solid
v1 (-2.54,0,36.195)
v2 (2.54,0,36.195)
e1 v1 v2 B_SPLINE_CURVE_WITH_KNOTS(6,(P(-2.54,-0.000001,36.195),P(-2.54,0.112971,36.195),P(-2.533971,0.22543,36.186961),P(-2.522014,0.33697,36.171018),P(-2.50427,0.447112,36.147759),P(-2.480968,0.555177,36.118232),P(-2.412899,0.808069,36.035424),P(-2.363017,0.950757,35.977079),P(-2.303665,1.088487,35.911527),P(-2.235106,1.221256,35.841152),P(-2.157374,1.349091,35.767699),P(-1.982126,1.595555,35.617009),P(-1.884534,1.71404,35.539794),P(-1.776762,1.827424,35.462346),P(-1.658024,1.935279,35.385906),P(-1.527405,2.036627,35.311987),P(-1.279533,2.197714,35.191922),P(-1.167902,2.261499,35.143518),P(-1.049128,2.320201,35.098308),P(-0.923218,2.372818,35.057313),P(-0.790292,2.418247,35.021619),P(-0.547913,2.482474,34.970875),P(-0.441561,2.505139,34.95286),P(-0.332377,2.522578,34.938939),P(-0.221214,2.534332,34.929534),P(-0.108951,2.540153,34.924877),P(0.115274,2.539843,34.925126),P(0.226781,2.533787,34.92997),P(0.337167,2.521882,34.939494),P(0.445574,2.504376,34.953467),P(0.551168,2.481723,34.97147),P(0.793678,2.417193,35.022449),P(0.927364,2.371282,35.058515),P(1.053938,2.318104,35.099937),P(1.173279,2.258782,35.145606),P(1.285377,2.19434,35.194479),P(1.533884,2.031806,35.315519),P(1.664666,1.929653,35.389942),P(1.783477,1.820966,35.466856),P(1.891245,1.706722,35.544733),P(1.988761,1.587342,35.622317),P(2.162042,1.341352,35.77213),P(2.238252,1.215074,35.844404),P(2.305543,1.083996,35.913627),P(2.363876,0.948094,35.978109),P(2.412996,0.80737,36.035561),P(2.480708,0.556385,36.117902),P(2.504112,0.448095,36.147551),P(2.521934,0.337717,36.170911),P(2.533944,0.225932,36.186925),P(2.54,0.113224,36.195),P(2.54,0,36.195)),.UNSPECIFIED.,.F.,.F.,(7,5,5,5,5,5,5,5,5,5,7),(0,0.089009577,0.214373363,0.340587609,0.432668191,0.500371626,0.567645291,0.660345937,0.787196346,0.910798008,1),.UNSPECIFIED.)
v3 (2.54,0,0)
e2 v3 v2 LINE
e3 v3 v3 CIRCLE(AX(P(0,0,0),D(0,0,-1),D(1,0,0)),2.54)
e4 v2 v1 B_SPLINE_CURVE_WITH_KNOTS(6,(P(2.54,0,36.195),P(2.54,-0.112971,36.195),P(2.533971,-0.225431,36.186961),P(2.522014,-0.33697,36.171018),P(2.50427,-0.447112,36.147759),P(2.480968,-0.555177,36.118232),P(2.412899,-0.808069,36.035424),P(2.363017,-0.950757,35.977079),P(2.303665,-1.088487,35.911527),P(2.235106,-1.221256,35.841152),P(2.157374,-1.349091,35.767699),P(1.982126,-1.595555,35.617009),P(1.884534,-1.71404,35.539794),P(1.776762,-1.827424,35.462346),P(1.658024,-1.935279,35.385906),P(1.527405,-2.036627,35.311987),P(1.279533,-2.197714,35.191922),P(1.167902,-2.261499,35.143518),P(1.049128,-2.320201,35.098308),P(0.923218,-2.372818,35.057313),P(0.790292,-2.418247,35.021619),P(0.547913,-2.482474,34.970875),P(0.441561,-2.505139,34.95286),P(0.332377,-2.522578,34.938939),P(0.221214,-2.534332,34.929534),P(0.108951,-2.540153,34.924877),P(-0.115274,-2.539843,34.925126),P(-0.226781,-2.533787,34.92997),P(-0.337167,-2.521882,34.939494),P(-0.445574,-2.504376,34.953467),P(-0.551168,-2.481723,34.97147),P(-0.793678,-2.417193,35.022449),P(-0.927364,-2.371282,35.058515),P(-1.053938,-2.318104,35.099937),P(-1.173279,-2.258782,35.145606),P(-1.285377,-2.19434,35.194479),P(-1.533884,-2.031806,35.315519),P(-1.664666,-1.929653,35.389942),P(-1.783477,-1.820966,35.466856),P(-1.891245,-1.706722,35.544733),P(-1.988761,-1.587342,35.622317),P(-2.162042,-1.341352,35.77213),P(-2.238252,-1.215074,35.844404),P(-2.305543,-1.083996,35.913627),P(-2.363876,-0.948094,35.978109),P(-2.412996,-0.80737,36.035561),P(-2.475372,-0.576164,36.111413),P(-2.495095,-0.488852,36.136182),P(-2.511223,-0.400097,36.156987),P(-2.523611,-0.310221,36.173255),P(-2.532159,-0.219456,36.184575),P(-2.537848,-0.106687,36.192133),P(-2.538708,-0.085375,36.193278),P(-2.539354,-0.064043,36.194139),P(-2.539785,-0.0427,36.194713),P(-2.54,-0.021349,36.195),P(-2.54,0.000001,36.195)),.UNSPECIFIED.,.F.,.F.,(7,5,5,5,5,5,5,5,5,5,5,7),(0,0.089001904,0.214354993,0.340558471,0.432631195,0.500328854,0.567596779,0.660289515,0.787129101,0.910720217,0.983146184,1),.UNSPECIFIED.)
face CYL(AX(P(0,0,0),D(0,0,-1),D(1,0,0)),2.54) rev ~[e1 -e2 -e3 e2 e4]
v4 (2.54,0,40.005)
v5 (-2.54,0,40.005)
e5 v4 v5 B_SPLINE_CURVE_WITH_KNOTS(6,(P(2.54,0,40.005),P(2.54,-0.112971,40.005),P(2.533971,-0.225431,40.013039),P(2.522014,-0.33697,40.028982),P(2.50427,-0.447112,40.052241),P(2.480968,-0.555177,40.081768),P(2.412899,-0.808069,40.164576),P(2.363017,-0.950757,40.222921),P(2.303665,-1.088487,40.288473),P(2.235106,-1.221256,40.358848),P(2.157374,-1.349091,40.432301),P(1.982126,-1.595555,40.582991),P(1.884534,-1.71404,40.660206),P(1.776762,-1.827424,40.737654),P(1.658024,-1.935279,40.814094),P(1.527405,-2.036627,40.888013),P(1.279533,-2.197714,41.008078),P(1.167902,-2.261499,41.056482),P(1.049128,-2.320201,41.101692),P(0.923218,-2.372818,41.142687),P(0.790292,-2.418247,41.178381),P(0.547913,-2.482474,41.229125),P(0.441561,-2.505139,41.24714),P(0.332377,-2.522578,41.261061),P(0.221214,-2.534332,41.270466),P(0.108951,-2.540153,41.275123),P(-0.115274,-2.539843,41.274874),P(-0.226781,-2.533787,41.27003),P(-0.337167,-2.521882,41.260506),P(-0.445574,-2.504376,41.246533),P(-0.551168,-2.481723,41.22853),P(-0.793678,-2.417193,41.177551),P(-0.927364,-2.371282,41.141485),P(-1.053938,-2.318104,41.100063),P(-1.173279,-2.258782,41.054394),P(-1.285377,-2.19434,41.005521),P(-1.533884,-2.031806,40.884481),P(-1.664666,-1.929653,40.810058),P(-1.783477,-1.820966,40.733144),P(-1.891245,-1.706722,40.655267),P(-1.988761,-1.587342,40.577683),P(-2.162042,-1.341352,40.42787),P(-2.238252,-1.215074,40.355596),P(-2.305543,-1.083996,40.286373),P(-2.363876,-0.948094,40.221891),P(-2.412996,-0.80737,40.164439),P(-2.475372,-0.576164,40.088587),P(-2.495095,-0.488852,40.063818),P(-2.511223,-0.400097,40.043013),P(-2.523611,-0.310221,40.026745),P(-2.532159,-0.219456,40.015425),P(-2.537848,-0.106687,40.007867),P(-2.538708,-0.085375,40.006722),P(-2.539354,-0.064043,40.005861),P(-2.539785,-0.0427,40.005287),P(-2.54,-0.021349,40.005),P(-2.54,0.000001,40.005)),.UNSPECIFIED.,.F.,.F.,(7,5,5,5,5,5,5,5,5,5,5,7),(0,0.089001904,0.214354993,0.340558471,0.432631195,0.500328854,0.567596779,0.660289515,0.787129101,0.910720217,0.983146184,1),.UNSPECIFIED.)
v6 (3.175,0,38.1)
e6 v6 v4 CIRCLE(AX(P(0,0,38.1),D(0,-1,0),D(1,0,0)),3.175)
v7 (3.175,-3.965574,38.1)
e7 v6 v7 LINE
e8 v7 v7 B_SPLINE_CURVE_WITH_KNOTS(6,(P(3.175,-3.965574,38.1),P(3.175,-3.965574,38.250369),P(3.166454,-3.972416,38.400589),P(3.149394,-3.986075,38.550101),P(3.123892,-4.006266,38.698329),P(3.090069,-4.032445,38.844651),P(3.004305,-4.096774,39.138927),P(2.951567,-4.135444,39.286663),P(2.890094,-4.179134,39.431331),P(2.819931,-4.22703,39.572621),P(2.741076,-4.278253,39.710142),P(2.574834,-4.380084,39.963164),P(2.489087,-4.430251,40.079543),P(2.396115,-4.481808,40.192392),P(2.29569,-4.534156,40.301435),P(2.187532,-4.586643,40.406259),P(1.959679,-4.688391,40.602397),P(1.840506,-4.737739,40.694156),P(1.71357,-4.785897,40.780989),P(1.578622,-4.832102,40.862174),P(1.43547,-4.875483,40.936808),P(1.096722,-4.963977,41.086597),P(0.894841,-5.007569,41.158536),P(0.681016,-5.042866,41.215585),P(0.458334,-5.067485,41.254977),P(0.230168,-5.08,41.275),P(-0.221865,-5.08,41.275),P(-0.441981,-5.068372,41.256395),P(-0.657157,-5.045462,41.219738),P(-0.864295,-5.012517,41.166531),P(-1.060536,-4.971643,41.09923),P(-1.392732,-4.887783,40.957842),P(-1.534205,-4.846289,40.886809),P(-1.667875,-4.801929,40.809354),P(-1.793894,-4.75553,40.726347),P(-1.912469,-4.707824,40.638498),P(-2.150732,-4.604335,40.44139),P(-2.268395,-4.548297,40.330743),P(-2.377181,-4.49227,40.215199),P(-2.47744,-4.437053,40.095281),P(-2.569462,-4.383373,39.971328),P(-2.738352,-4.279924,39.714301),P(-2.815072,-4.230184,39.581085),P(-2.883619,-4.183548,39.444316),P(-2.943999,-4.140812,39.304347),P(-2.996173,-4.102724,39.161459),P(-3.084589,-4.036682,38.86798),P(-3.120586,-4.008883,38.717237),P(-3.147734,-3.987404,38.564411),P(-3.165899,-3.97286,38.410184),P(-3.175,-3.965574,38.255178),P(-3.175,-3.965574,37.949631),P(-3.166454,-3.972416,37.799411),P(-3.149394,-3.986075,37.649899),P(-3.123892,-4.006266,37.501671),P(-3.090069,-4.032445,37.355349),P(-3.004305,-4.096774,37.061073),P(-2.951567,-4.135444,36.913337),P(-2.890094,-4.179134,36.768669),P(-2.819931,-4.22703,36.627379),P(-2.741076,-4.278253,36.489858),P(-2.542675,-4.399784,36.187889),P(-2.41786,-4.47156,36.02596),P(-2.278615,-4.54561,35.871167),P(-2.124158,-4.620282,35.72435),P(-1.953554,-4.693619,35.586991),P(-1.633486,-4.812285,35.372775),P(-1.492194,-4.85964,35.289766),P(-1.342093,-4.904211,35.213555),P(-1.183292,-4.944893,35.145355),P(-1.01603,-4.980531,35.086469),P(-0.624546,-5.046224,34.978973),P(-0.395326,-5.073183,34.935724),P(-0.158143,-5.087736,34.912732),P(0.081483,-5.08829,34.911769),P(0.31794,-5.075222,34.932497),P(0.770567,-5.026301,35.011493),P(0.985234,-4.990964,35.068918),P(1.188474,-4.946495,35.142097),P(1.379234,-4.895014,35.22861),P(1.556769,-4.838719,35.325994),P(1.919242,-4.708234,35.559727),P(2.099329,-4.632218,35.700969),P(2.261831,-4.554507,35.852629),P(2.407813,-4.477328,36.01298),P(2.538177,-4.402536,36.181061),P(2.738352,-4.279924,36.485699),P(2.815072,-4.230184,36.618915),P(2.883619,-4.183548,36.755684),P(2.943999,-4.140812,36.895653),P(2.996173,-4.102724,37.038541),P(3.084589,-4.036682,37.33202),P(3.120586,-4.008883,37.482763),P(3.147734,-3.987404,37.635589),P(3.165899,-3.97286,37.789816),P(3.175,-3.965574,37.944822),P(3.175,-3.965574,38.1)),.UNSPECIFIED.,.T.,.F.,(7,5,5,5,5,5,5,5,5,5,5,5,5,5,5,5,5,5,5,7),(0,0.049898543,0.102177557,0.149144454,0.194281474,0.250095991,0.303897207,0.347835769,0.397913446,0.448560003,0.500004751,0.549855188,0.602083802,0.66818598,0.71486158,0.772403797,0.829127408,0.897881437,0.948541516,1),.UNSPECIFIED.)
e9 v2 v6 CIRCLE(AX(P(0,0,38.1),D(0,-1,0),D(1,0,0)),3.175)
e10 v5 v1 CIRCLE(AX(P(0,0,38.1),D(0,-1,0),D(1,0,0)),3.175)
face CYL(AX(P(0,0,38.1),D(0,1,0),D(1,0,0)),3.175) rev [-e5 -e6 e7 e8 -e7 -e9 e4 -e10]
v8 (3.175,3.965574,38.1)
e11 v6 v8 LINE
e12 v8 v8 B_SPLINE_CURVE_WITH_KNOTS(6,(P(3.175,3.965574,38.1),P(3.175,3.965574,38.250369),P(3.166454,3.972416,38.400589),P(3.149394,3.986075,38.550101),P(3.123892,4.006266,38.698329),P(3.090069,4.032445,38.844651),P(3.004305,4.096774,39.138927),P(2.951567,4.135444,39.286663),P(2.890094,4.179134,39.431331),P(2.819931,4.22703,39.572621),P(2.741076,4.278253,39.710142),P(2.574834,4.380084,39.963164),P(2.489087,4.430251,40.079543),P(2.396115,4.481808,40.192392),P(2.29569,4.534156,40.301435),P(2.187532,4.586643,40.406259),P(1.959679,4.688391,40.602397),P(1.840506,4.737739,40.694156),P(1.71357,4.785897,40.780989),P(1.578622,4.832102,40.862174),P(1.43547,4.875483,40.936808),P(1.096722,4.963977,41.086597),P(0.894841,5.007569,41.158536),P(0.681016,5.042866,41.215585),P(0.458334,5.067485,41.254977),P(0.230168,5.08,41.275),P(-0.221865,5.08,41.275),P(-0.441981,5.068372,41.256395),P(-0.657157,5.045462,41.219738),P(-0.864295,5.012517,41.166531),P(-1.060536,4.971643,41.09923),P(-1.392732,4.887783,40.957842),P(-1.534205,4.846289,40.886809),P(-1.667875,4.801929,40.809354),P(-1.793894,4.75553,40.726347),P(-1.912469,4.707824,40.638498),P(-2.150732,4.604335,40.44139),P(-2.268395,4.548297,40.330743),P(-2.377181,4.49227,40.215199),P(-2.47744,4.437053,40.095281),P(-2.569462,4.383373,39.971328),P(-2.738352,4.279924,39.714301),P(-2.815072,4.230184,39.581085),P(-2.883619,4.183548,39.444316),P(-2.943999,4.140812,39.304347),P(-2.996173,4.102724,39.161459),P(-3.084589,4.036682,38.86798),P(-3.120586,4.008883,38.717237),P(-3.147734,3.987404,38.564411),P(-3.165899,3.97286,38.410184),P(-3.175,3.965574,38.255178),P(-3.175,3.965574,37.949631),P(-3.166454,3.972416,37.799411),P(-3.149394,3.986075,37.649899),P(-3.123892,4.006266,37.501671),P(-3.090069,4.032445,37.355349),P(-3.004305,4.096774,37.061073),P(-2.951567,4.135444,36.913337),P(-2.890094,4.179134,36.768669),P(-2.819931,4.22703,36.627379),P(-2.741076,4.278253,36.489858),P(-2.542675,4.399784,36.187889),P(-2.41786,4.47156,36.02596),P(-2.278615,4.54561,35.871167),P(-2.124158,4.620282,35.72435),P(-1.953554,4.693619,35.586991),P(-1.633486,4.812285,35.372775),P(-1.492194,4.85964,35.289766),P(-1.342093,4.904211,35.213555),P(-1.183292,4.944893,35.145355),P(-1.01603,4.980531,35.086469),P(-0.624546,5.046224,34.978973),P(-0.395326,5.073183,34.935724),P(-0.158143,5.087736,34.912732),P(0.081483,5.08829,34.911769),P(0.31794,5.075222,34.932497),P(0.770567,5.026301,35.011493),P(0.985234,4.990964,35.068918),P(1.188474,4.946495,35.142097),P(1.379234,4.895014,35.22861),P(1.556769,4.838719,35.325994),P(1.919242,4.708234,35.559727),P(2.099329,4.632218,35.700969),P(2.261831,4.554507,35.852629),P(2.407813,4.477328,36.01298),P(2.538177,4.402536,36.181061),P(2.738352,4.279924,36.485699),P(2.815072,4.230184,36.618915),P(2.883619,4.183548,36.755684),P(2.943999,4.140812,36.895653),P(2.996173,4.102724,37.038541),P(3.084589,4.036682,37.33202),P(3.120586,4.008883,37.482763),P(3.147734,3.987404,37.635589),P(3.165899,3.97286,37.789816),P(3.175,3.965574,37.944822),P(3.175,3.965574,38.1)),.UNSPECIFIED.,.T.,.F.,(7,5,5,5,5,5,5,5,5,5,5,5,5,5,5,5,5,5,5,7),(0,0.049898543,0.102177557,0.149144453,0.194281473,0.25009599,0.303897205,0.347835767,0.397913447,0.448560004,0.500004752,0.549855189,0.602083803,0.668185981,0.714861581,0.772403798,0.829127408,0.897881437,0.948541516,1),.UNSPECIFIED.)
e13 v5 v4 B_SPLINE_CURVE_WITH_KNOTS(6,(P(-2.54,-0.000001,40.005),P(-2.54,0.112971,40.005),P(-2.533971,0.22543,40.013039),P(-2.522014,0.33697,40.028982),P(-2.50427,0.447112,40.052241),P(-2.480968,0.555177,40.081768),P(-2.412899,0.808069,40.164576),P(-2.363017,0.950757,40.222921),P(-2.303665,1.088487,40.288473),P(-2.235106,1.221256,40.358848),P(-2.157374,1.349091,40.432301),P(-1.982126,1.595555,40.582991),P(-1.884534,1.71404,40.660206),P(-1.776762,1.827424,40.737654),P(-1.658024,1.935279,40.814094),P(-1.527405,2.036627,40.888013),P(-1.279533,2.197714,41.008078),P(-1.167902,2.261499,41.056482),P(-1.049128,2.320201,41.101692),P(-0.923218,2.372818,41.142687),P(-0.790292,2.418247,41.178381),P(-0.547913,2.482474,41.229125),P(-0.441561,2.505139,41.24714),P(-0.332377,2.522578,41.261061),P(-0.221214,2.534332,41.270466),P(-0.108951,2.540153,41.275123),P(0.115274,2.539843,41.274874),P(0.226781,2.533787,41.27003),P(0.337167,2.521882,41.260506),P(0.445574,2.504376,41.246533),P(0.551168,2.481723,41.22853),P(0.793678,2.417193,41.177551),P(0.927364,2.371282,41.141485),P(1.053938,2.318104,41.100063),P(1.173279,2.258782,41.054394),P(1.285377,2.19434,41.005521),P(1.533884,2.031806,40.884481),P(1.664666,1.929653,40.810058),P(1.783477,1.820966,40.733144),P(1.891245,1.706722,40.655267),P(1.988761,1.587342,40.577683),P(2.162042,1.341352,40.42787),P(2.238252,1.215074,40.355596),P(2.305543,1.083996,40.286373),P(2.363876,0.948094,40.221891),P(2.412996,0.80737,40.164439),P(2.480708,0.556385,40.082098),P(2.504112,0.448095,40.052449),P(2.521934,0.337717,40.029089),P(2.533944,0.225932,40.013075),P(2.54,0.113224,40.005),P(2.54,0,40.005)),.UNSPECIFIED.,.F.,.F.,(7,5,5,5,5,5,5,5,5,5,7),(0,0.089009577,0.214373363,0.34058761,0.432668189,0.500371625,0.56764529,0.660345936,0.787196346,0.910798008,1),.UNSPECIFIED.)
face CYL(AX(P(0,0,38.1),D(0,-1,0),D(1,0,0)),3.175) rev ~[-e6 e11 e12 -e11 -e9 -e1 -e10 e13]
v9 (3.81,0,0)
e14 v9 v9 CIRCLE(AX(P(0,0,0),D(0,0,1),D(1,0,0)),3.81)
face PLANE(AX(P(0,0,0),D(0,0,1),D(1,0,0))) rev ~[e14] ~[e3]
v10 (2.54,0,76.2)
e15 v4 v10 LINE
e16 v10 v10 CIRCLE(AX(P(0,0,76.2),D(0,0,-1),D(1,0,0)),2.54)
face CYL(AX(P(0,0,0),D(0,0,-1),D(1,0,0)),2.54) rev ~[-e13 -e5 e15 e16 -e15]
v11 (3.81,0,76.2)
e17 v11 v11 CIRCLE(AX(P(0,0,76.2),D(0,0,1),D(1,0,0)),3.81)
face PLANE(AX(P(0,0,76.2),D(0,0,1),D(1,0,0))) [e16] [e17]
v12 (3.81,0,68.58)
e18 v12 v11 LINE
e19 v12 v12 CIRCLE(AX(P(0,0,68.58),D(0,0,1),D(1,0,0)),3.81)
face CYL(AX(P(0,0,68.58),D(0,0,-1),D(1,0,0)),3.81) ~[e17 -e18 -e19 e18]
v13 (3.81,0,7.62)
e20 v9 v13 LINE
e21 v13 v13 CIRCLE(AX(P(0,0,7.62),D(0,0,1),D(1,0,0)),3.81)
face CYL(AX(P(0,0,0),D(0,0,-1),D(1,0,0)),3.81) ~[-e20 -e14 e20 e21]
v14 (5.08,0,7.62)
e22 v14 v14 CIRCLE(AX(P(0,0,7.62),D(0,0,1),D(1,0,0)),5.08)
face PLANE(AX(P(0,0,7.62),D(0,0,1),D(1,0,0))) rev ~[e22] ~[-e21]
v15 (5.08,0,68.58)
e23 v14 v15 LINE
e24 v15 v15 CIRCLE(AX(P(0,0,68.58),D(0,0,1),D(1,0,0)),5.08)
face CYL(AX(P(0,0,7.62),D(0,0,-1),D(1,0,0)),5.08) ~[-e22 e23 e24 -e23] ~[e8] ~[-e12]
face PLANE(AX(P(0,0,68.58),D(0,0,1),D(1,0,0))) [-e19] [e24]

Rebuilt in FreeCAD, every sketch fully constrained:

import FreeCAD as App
import Part
import Sketcher
Q = App.Units.Quantity

doc = App.newDocument("Part")
body = doc.addObject("PartDesign::Body", "Body")

sketch1 = body.newObject("Sketcher::SketchObject", "Sketch")
sketch1.AttachmentSupport = (doc.getObject("XY_Plane"), [""])
sketch1.MapMode = "FlatFace"
sketch1.addGeometry(Part.Circle(App.Vector(0, 0, 0), App.Vector(0, 0, 1), 3.81), False)
sketch1.addConstraint([
    Sketcher.Constraint("Coincident", 0, 3, -1, 1),
    Sketcher.Constraint("Diameter", 0, Q("0.3 in")),
])
pad1 = body.newObject("PartDesign::Pad", "Pad")
pad1.Profile = sketch1
pad1.Length = Q("0.3 in")

sketch2 = body.newObject("Sketcher::SketchObject", "Sketch001")
sketch2.AttachmentSupport = (doc.getObject("XY_Plane"), [""])
sketch2.MapMode = "FlatFace"
sketch2.AttachmentOffset = App.Placement(App.Vector(0, 0, 0.3 * 25.4), App.Rotation())
sketch2.addGeometry(Part.Circle(App.Vector(0, 0, 0), App.Vector(0, 0, 1), 5.08), False)
sketch2.addConstraint([
    Sketcher.Constraint("Coincident", 0, 3, -1, 1),
    Sketcher.Constraint("Diameter", 0, Q("0.4 in")),
])
pad2 = body.newObject("PartDesign::Pad", "Pad001")
pad2.Profile = sketch2
pad2.Length = Q("2.4 in")

sketch3 = body.newObject("Sketcher::SketchObject", "Sketch002")
sketch3.AttachmentSupport = (doc.getObject("XY_Plane"), [""])
sketch3.MapMode = "FlatFace"
sketch3.AttachmentOffset = App.Placement(App.Vector(0, 0, 2.7 * 25.4), App.Rotation())
sketch3.addGeometry(Part.Circle(App.Vector(0, 0, 0), App.Vector(0, 0, 1), 3.81), False)
sketch3.addConstraint([
    Sketcher.Constraint("Coincident", 0, 3, -1, 1),
    Sketcher.Constraint("Diameter", 0, Q("0.3 in")),
])
pad3 = body.newObject("PartDesign::Pad", "Pad002")
pad3.Profile = sketch3
pad3.Length = Q("0.3 in")

sketch4 = body.newObject("Sketcher::SketchObject", "Sketch003")
sketch4.AttachmentSupport = (doc.getObject("XZ_Plane"), [""])
sketch4.MapMode = "FlatFace"
sketch4.addGeometry(Part.Circle(App.Vector(0, 38.1, 0), App.Vector(0, 0, 1), 3.175), False)
sketch4.addConstraint([
    Sketcher.Constraint("PointOnObject", 0, 3, -2),
    Sketcher.Constraint("Diameter", 0, Q("0.25 in")),
    Sketcher.Constraint("DistanceY", -1, 1, 0, 3, Q("1.5 in")),
])
pocket1 = body.newObject("PartDesign::Pocket", "Pocket")
pocket1.Profile = sketch4
pocket1.Type = "ThroughAll"
pocket1.Midplane = True

sketch5 = body.newObject("Sketcher::SketchObject", "Sketch004")
sketch5.AttachmentSupport = (doc.getObject("XY_Plane"), [""])
sketch5.MapMode = "FlatFace"
sketch5.addGeometry(Part.Circle(App.Vector(0, 0, 0), App.Vector(0, 0, 1), 2.54), False)
sketch5.addConstraint([
    Sketcher.Constraint("Coincident", 0, 3, -1, 1),
    Sketcher.Constraint("Diameter", 0, Q("0.2 in")),
])
pocket2 = body.newObject("PartDesign::Pocket", "Pocket001")
pocket2.Profile = sketch5
pocket2.Type = "ThroughAll"
pocket2.Reversed = True

doc.recompute()
